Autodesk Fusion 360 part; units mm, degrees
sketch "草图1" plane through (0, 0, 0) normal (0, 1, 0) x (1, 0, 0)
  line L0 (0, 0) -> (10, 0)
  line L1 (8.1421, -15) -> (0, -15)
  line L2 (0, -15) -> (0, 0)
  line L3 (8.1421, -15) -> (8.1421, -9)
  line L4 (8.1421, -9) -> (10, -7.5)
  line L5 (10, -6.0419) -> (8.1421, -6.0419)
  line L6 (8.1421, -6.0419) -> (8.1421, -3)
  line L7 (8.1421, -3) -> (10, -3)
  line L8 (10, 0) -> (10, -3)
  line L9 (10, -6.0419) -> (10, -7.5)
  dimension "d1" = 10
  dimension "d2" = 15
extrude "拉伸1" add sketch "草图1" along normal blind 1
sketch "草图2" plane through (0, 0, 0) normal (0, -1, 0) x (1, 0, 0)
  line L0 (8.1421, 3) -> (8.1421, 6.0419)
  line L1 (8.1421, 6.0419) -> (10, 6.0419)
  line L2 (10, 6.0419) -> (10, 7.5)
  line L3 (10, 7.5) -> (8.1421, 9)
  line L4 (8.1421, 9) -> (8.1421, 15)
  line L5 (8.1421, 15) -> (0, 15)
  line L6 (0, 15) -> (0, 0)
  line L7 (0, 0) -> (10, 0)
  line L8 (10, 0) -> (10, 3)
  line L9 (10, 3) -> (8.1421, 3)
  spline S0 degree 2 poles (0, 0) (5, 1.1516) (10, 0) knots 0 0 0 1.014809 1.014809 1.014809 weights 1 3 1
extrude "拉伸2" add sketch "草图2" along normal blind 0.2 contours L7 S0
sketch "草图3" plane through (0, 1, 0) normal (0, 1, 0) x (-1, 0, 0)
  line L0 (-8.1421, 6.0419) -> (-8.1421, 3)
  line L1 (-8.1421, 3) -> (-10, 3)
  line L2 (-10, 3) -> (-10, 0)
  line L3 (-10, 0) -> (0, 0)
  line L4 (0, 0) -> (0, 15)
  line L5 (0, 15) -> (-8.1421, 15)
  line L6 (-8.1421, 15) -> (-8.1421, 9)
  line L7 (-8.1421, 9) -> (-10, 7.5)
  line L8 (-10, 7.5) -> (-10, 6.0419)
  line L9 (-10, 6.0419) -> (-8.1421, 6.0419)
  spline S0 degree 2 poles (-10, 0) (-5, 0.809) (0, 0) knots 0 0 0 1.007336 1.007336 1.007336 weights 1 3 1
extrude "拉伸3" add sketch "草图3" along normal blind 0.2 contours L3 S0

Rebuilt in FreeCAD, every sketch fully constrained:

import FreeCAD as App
import Part
import Sketcher


def add_polygon(sketch, points):
    """Adds a closed chain of lines whose ends are joined by coincident constraints."""
    first, n = sketch.GeometryCount, len(points)
    for a, b in zip(points, points[1:] + points[:1]):
        sketch.addGeometry(Part.LineSegment(App.Vector(*a, 0), App.Vector(*b, 0)), False)
    for i in range(n):
        sketch.addConstraint(Sketcher.Constraint("Coincident", first + i, 2, first + (i + 1) % n, 1))

doc = App.newDocument("Part")
body = doc.addObject("PartDesign::Body", "Body")

# Sketch on XZ plane
sketch1 = body.newObject("Sketcher::SketchObject", "Sketch")
sketch1.AttachmentSupport = (doc.getObject("XZ_Plane"), [""])
sketch1.MapMode = "FlatFace"
add_polygon(sketch1, [(10, 0), (0, 0), (0, 15), (8.1421, 15), (8.1421, 9), (10, 7.5), (10, 6.0419), (8.1421, 6.0419), (8.1421, 3), (10, 3)])  # lines 0-9
sketch1.addConstraint([
    Sketcher.Constraint("Horizontal", 0),
    Sketcher.Constraint("Vertical", 1),
    Sketcher.Constraint("Horizontal", 2),
    Sketcher.Constraint("Vertical", 3),
    Sketcher.Constraint("Vertical", 5),
    Sketcher.Constraint("Horizontal", 6),
    Sketcher.Constraint("Vertical", 7),
    Sketcher.Constraint("Horizontal", 8),
    Sketcher.Constraint("Vertical", 9),
    Sketcher.Constraint("Coincident", 0, 2, -1, 1),
    Sketcher.Constraint("Vertical", 3, 2, 6, 2),
    Sketcher.Constraint("Vertical", 5, 2, 8, 2),
    Sketcher.Constraint("DistanceX", 0, 2, 0, 1, 10.0),
    Sketcher.Constraint("DistanceY", 1, 1, 1, 2, 15.0),
    Sketcher.Constraint("DistanceY", 3, 2, 3, 1, 6.0),
    Sketcher.Constraint("DistanceY", 9, 2, 9, 1, 3.0),
    Sketcher.Constraint("DistanceY", -1, 1, 4, 2, 7.5),
    Sketcher.Constraint("DistanceX", 2, 1, 2, 2, 8.142),
    Sketcher.Constraint("DistanceY", 5, 2, 5, 1, 1.458),
])
pad1 = body.newObject("PartDesign::Pad", "Pad")
pad1.Profile = sketch1
pad1.Length = 1
pad1.Reversed = True

# Sketch on XZ plane
sketch2 = body.newObject("Sketcher::SketchObject", "Sketch001")
sketch2.AttachmentSupport = (doc.getObject("XZ_Plane"), [""])
sketch2.MapMode = "FlatFace"
sketch2.addGeometry([
    Part.LineSegment(App.Vector(0, 0, 0), App.Vector(10, 0, 0)),
    Part.BSplineCurve([App.Vector(0, 0, 0), App.Vector(5, 1.1516, 0), App.Vector(10, 0, 0)], [3, 3], [0, 1.014809], False, 2, [1, 3, 1], False),
], False)
sketch2.addConstraint([
    Sketcher.Constraint("Block", 1),
    Sketcher.Constraint("Coincident", 0, 1, 1, 1),
    Sketcher.Constraint("Coincident", 1, 2, 0, 2),
])
pad2 = body.newObject("PartDesign::Pad", "Pad001")
pad2.Profile = sketch2
pad2.Length = 0.2

# Sketch on XZ plane
sketch3 = body.newObject("Sketcher::SketchObject", "Sketch002")
sketch3.AttachmentSupport = (doc.getObject("XZ_Plane"), [""])
sketch3.MapMode = "FlatFace"
sketch3.AttachmentOffset = App.Placement(App.Vector(0, 0, -1), App.Rotation())
sketch3.addGeometry([
    Part.BSplineCurve([App.Vector(10, 0, 0), App.Vector(5, 0.809, 0), App.Vector(0, 0, 0)], [3, 3], [0, 1.007336], False, 2, [1, 3, 1], False),
    Part.LineSegment(App.Vector(10, 0, 0), App.Vector(0, 0, 0)),
], False)
sketch3.addConstraint([
    Sketcher.Constraint("Block", 0),
    Sketcher.Constraint("Coincident", 0, 1, 1, 1),
    Sketcher.Constraint("Coincident", 1, 2, 0, 2),
])
pad3 = body.newObject("PartDesign::Pad", "Pad002")
pad3.Profile = sketch3
pad3.Length = 0.2
pad3.Reversed = True

doc.recompute()
